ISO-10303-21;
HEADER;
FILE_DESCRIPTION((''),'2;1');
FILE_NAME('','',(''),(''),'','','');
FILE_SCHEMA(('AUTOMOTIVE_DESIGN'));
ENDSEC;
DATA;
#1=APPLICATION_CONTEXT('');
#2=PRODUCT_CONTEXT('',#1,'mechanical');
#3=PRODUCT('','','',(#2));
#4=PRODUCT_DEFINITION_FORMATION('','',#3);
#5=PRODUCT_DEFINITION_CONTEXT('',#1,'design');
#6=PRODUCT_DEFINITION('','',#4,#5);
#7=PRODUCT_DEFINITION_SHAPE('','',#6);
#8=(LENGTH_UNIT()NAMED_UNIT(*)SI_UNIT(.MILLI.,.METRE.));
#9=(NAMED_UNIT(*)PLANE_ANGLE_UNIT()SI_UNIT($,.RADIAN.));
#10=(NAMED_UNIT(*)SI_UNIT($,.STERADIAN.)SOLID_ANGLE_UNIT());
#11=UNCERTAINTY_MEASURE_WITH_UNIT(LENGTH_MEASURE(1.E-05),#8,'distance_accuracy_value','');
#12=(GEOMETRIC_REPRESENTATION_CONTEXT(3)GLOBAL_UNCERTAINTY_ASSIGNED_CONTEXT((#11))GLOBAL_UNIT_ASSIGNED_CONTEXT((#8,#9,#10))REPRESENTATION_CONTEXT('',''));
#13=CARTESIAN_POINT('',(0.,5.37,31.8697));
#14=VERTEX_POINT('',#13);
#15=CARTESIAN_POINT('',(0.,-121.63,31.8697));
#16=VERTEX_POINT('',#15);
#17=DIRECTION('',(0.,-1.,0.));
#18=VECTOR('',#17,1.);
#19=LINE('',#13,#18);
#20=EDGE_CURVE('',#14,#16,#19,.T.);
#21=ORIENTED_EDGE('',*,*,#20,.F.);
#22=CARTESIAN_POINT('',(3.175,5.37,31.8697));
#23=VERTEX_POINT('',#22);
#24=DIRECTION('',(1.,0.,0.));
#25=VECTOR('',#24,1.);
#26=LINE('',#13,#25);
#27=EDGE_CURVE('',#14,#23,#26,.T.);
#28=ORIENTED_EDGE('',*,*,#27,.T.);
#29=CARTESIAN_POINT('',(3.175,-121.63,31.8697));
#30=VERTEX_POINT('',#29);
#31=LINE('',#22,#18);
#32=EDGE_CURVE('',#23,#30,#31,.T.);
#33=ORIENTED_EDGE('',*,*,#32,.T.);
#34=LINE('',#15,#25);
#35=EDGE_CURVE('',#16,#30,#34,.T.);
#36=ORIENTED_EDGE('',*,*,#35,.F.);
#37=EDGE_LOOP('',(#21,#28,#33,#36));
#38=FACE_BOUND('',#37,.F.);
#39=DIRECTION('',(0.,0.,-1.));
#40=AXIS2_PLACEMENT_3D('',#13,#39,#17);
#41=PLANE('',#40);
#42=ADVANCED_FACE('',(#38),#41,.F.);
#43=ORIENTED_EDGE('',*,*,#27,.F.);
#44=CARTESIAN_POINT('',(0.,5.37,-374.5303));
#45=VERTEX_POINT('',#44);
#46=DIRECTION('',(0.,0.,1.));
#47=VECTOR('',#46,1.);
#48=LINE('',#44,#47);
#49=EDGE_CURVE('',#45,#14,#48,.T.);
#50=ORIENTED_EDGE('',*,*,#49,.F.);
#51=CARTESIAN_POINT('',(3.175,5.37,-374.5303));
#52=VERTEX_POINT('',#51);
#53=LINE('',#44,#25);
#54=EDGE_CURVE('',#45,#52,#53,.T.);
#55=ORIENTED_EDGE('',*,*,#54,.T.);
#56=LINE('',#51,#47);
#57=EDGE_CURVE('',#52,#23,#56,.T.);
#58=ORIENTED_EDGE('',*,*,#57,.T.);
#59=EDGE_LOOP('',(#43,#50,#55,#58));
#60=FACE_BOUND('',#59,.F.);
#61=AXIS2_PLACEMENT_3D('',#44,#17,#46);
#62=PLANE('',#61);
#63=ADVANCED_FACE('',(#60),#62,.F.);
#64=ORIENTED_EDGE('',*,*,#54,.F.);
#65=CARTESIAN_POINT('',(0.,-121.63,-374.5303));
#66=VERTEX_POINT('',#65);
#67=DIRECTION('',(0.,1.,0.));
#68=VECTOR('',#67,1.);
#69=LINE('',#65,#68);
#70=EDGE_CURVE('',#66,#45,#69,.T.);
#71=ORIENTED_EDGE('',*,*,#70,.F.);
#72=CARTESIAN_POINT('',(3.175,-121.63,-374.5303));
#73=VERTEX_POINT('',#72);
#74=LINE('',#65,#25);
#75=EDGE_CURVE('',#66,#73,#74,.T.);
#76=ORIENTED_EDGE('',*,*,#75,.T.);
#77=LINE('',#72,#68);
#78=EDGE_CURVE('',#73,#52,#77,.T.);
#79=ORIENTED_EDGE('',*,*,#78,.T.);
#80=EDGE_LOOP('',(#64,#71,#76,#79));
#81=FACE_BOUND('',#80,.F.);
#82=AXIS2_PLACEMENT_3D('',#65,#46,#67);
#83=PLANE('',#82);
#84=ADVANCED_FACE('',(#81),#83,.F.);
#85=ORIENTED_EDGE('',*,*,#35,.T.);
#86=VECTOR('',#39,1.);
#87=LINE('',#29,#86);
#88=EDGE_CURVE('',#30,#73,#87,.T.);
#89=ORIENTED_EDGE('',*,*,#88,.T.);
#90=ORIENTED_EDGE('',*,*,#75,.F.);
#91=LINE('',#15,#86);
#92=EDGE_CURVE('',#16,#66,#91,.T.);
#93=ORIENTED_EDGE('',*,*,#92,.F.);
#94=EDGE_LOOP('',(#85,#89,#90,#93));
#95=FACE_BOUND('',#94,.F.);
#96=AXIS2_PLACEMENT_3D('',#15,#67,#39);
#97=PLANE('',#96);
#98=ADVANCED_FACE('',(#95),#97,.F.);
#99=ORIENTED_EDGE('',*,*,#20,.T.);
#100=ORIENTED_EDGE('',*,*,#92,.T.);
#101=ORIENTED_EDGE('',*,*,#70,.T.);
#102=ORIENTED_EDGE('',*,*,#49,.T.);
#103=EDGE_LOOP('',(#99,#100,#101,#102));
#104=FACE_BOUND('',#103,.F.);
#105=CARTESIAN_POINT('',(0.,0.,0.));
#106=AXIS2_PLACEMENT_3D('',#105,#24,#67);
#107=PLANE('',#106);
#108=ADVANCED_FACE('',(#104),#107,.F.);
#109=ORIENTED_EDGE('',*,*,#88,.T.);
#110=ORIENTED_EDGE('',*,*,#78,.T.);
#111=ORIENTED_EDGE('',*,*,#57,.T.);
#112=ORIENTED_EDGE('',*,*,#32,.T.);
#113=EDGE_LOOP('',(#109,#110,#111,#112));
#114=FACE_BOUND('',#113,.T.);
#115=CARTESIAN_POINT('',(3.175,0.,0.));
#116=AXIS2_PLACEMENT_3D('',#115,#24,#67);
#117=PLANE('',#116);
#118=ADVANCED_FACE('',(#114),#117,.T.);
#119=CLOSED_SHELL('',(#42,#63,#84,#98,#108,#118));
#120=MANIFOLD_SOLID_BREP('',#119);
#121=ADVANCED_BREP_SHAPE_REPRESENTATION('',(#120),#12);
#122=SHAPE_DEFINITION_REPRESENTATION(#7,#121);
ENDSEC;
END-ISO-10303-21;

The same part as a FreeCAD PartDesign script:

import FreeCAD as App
import Part
import Sketcher
Q = App.Units.Quantity

doc = App.newDocument("Part")
body = doc.addObject("PartDesign::Body", "Body")

# Sketch on YZ plane
sketch1 = body.newObject("Sketcher::SketchObject", "Sketch")
sketch1.AttachmentSupport = (doc.getObject("YZ_Plane"), [""])
sketch1.MapMode = "FlatFace"
sketch1.addGeometry([
    Part.LineSegment(App.Vector(5.37, -374.5303, 0), App.Vector(5.37, 31.8697, 0)),
    Part.LineSegment(App.Vector(5.37, 31.8697, 0), App.Vector(-121.63, 31.8697, 0)),
    Part.LineSegment(App.Vector(-121.63, 31.8697, 0), App.Vector(-121.63, -374.5303, 0)),
    Part.LineSegment(App.Vector(-121.63, -374.5303, 0), App.Vector(5.37, -374.5303, 0)),
], False)
sketch1.addConstraint([
    Sketcher.Constraint("Coincident", 0, 2, 1, 1),
    Sketcher.Constraint("Coincident", 1, 2, 2, 1),
    Sketcher.Constraint("Coincident", 2, 2, 3, 1),
    Sketcher.Constraint("Coincident", 3, 2, 0, 1),
    Sketcher.Constraint("Vertical", 0),
    Sketcher.Constraint("Horizontal", 1),
    Sketcher.Constraint("Vertical", 2),
    Sketcher.Constraint("Horizontal", 3),
    Sketcher.Constraint("DistanceX", 1, 2, 1, 1, Q("5 in")),
    Sketcher.Constraint("DistanceY", 0, 1, 0, 2, Q("16 in")),
    Sketcher.Constraint("DistanceX", -1, 1, 0, 2, 5.37),
    Sketcher.Constraint("DistanceY", -1, 1, 0, 2, 31.8697),
])
pad1 = body.newObject("PartDesign::Pad", "Pad")
pad1.Profile = sketch1
pad1.Length = Q("0.125 in")

doc.recompute()
